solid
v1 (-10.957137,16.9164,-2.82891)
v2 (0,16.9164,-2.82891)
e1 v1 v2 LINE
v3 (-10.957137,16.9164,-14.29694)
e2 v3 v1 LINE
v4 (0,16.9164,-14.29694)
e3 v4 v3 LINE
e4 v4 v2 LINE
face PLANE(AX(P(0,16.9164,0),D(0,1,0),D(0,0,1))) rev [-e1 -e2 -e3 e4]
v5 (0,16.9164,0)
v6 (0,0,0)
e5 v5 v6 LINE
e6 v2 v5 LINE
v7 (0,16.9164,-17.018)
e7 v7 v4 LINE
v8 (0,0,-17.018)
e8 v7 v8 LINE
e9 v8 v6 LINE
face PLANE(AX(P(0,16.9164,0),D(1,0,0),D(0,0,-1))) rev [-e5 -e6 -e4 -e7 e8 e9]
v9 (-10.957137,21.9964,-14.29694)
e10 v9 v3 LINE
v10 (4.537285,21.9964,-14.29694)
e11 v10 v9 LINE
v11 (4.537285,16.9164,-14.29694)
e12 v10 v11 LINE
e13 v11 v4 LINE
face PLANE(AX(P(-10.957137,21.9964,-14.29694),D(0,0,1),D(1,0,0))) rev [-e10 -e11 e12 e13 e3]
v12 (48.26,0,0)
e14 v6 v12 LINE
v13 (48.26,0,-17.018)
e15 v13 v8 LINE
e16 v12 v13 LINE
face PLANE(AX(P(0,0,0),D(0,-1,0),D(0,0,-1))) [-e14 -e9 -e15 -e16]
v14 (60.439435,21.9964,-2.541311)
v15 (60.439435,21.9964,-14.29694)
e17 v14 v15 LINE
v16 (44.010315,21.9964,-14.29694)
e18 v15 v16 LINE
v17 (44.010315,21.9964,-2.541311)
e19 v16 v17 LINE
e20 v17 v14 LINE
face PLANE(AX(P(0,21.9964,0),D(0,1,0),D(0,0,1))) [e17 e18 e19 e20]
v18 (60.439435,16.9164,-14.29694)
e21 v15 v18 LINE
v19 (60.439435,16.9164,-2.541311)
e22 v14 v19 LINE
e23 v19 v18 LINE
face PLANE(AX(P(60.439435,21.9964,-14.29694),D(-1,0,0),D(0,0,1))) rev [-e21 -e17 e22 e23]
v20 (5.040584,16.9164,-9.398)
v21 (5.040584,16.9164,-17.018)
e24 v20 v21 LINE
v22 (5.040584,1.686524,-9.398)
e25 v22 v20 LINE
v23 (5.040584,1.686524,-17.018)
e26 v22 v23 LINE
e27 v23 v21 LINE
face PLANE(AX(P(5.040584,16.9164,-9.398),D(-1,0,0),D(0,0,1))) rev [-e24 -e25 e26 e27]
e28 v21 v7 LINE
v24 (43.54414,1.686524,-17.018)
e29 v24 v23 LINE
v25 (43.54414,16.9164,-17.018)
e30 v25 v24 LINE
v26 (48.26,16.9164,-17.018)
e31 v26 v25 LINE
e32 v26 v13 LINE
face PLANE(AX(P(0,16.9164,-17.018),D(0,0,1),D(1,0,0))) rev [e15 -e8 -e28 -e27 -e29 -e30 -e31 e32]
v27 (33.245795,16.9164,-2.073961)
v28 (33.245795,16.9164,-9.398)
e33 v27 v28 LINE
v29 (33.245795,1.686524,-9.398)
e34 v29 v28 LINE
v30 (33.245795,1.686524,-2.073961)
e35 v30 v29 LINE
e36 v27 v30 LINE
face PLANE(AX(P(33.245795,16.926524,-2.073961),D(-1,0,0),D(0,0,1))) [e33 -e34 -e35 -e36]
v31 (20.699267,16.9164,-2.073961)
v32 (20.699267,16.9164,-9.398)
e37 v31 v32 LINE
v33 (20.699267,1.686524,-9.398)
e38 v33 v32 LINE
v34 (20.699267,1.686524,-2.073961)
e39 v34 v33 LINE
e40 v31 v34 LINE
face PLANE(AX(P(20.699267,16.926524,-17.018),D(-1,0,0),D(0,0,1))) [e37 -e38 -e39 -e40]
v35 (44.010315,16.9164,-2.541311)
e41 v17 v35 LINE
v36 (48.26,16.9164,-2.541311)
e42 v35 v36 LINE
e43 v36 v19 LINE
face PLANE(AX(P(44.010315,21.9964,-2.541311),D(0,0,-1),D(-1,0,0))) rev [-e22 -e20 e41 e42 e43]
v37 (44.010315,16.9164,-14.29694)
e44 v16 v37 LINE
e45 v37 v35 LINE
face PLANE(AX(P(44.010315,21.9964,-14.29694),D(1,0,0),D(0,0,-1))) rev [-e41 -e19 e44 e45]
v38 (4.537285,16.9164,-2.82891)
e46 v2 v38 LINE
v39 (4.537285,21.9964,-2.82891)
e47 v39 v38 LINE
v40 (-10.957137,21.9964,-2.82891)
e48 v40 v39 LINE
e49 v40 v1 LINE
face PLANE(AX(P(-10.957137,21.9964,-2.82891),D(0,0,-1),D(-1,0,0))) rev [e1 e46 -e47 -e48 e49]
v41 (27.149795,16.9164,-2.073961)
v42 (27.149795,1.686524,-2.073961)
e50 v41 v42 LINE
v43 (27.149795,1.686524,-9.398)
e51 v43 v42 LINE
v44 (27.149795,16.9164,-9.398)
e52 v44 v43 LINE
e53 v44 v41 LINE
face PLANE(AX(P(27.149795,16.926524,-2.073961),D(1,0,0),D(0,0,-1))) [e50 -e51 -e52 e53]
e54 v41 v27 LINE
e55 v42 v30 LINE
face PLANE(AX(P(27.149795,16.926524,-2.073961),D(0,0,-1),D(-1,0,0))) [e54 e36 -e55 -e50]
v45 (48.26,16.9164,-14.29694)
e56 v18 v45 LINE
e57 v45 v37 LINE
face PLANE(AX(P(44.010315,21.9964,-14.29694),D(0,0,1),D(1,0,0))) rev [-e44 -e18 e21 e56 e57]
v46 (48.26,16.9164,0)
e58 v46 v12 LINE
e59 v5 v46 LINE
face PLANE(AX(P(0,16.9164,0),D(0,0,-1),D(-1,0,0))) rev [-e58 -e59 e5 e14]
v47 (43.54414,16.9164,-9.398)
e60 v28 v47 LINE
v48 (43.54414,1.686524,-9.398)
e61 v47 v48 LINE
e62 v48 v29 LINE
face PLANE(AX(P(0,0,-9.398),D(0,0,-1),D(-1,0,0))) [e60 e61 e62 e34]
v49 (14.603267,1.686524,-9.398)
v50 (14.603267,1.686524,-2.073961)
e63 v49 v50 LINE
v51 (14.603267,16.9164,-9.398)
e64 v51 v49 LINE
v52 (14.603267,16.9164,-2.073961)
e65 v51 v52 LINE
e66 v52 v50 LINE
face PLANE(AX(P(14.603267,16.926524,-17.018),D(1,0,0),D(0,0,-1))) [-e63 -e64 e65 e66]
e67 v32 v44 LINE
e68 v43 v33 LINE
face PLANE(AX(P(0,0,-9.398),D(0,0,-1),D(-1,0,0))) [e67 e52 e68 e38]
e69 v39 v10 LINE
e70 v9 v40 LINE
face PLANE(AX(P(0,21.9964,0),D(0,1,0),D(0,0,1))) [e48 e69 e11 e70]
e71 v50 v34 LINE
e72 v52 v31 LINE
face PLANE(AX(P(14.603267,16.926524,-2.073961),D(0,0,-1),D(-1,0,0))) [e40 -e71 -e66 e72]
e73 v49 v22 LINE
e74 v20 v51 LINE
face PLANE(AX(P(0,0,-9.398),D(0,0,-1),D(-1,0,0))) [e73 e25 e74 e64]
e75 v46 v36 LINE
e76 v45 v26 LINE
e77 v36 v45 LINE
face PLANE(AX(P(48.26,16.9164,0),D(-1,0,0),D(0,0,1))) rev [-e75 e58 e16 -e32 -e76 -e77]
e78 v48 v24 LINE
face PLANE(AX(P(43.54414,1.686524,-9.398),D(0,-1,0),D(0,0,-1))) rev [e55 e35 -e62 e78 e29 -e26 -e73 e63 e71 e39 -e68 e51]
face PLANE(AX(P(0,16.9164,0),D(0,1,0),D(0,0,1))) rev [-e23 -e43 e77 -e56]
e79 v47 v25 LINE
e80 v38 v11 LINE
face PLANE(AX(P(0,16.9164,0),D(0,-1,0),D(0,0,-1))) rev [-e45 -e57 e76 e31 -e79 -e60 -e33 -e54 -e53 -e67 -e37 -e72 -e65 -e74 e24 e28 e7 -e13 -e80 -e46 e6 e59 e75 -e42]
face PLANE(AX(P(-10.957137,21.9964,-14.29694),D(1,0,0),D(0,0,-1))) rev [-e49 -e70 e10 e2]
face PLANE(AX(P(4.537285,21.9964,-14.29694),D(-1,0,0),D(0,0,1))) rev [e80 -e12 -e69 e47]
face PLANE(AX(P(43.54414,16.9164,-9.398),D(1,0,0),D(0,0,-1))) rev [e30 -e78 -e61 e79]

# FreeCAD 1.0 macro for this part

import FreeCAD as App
import Part
import Sketcher

V = App.Vector
Q = App.Units.Quantity

doc = App.newDocument("Part")
body = doc.addObject("PartDesign::Body", "Body")

# Sketch on XZ plane
sketch1 = doc.addObject("Sketcher::SketchObject", "Sketch")
body.addObject(sketch1)
sketch1.AttachmentSupport = (doc.XZ_Plane, [""])
sketch1.MapMode = "FlatFace"
sketch1.addGeometry(Part.LineSegment(V(0, -17, 0), V(0, 0, 0)), False)
sketch1.addGeometry(Part.LineSegment(V(0, 0, 0), V(48, 0, 0)), False)
sketch1.addGeometry(Part.LineSegment(V(48, 0, 0), V(48, -17, 0)), False)
sketch1.addGeometry(Part.LineSegment(V(48, -17, 0), V(0, -17, 0)), False)
sketch1.addConstraint(Sketcher.Constraint("Coincident", 0, 2, 1, 1))
sketch1.addConstraint(Sketcher.Constraint("Coincident", 1, 2, 2, 1))
sketch1.addConstraint(Sketcher.Constraint("Coincident", 2, 2, 3, 1))
sketch1.addConstraint(Sketcher.Constraint("Coincident", 3, 2, 0, 1))
sketch1.addConstraint(Sketcher.Constraint("Vertical", 0))
sketch1.addConstraint(Sketcher.Constraint("Horizontal", 1))
sketch1.addConstraint(Sketcher.Constraint("Vertical", 2))
sketch1.addConstraint(Sketcher.Constraint("Horizontal", 3))
sketch1.addConstraint(Sketcher.Constraint("Coincident", 0, 2, -1, 1))
sketch1.addConstraint(Sketcher.Constraint("DistanceX", 1, 1, 1, 2, Q("1.9 in")))
sketch1.addConstraint(Sketcher.Constraint("DistanceY", 0, 1, 0, 2, Q("0.67 in")))
pad1 = doc.addObject("PartDesign::Pad", "Pad")
body.addObject(pad1)
pad1.Profile = sketch1
pad1.Length = Q("0.666 in")
pad1.Reversed = True

# Sketch on XY plane
sketch2 = doc.addObject("Sketcher::SketchObject", "Sketch001")
body.addObject(sketch2)
sketch2.AttachmentSupport = (doc.XY_Plane, [""])
sketch2.MapMode = "FlatFace"
sketch2.AttachmentOffset = App.Placement(V(0, 0, -0.67 * 25.4), App.Rotation())
sketch2.addGeometry(Part.LineSegment(V(44, 17, 0), V(44, 2, 0)), False)
sketch2.addGeometry(Part.LineSegment(V(44, 2, 0), V(5, 2, 0)), False)
sketch2.addGeometry(Part.LineSegment(V(5, 2, 0), V(5, 17, 0)), False)
sketch2.addGeometry(Part.LineSegment(V(5, 17, 0), V(44, 17, 0)), False)
sketch2.addConstraint(Sketcher.Constraint("Coincident", 0, 2, 1, 1))
sketch2.addConstraint(Sketcher.Constraint("Coincident", 1, 2, 2, 1))
sketch2.addConstraint(Sketcher.Constraint("Coincident", 2, 2, 3, 1))
sketch2.addConstraint(Sketcher.Constraint("Coincident", 3, 2, 0, 1))
sketch2.addConstraint(Sketcher.Constraint("Vertical", 0))
sketch2.addConstraint(Sketcher.Constraint("Horizontal", 1))
sketch2.addConstraint(Sketcher.Constraint("Vertical", 2))
sketch2.addConstraint(Sketcher.Constraint("Horizontal", 3))
sketch2.addConstraint(Sketcher.Constraint("DistanceY", -1, 1, 2, 2, Q("0.666 in")))
sketch2.addConstraint(Sketcher.Constraint("DistanceX", 1, 2, 1, 1, 38.503556))
sketch2.addConstraint(Sketcher.Constraint("DistanceY", 0, 2, 0, 1, 15.229876))
sketch2.addConstraint(Sketcher.Constraint("DistanceX", -1, 1, 0, 2, 43.54414))
pocket1 = doc.addObject("PartDesign::Pocket", "Pocket")
body.addObject(pocket1)
pocket1.Profile = sketch2
pocket1.Length = Q("0.3 in")
pocket1.Reversed = True

# Sketch on XZ plane
sketch3 = doc.addObject("Sketcher::SketchObject", "Sketch002")
body.addObject(sketch3)
sketch3.AttachmentSupport = (doc.XZ_Plane, [""])
sketch3.MapMode = "FlatFace"
sketch3.AttachmentOffset = App.Placement(V(0, 0, -1.686524), App.Rotation())
sketch3.addGeometry(Part.LineSegment(V(15, -17, 0), V(15, -2, 0)), False)
sketch3.addGeometry(Part.LineSegment(V(15, -2, 0), V(21, -2, 0)), False)
sketch3.addGeometry(Part.LineSegment(V(21, -2, 0), V(21, -17, 0)), False)
sketch3.addGeometry(Part.LineSegment(V(21, -17, 0), V(15, -17, 0)), False)
sketch3.addGeometry(Part.LineSegment(V(27, -17, 0), V(27, -2, 0)), False)
sketch3.addGeometry(Part.LineSegment(V(27, -2, 0), V(33, -2, 0)), False)
sketch3.addGeometry(Part.LineSegment(V(33, -2, 0), V(33, -17, 0)), False)
sketch3.addGeometry(Part.LineSegment(V(33, -17, 0), V(27, -17, 0)), False)
sketch3.addConstraint(Sketcher.Constraint("Coincident", 0, 2, 1, 1))
sketch3.addConstraint(Sketcher.Constraint("Coincident", 1, 2, 2, 1))
sketch3.addConstraint(Sketcher.Constraint("Coincident", 2, 2, 3, 1))
sketch3.addConstraint(Sketcher.Constraint("Coincident", 3, 2, 0, 1))
sketch3.addConstraint(Sketcher.Constraint("Coincident", 4, 2, 5, 1))
sketch3.addConstraint(Sketcher.Constraint("Coincident", 5, 2, 6, 1))
sketch3.addConstraint(Sketcher.Constraint("Coincident", 6, 2, 7, 1))
sketch3.addConstraint(Sketcher.Constraint("Coincident", 7, 2, 4, 1))
sketch3.addConstraint(Sketcher.Constraint("Vertical", 0))
sketch3.addConstraint(Sketcher.Constraint("Horizontal", 1))
sketch3.addConstraint(Sketcher.Constraint("Vertical", 2))
sketch3.addConstraint(Sketcher.Constraint("Horizontal", 3))
sketch3.addConstraint(Sketcher.Constraint("Vertical", 4))
sketch3.addConstraint(Sketcher.Constraint("Horizontal", 5))
sketch3.addConstraint(Sketcher.Constraint("Vertical", 6))
sketch3.addConstraint(Sketcher.Constraint("Horizontal", 7))
sketch3.addConstraint(Sketcher.Constraint("Horizontal", 1, 2, 4, 2))
sketch3.addConstraint(Sketcher.Constraint("Horizontal", 3, 2, 6, 2))
sketch3.addConstraint(Sketcher.Constraint("Equal", 3, 5))
sketch3.addConstraint(Sketcher.Constraint("DistanceX", 1, 1, 1, 2, Q("0.24 in")))
sketch3.addConstraint(Sketcher.Constraint("DistanceY", 2, 2, -1, 1, Q("0.67 in")))
sketch3.addConstraint(Sketcher.Constraint("DistanceY", 0, 1, 0, 2, 14.944039))
sketch3.addConstraint(Sketcher.Constraint("DistanceX", -1, 1, 0, 2, 14.603267))
sketch3.addConstraint(Sketcher.Constraint("DistanceX", -1, 1, 4, 2, 27.149795))
pocket2 = doc.addObject("PartDesign::Pocket", "Pocket001")
body.addObject(pocket2)
pocket2.Profile = sketch3
pocket2.Length = Q("0.6 in")

# Sketch on XZ plane
sketch4 = doc.addObject("Sketcher::SketchObject", "Sketch003")
body.addObject(sketch4)
sketch4.AttachmentSupport = (doc.XZ_Plane, [""])
sketch4.MapMode = "FlatFace"
sketch4.AttachmentOffset = App.Placement(V(0, 0, -0.666 * 25.4), App.Rotation())
sketch4.addGeometry(Part.LineSegment(V(-11, -14, 0), V(-11, -3, 0)), False)
sketch4.addGeometry(Part.LineSegment(V(-11, -3, 0), V(5, -3, 0)), False)
sketch4.addGeometry(Part.LineSegment(V(5, -3, 0), V(5, -14, 0)), False)
sketch4.addGeometry(Part.LineSegment(V(5, -14, 0), V(-11, -14, 0)), False)
sketch4.addGeometry(Part.LineSegment(V(44, -14, 0), V(44, -3, 0)), False)
sketch4.addGeometry(Part.LineSegment(V(44, -3, 0), V(60, -3, 0)), False)
sketch4.addGeometry(Part.LineSegment(V(60, -3, 0), V(60, -14, 0)), False)
sketch4.addGeometry(Part.LineSegment(V(60, -14, 0), V(44, -14, 0)), False)
sketch4.addConstraint(Sketcher.Constraint("Coincident", 0, 2, 1, 1))
sketch4.addConstraint(Sketcher.Constraint("Coincident", 1, 2, 2, 1))
sketch4.addConstraint(Sketcher.Constraint("Coincident", 2, 2, 3, 1))
sketch4.addConstraint(Sketcher.Constraint("Coincident", 3, 2, 0, 1))
sketch4.addConstraint(Sketcher.Constraint("Coincident", 4, 2, 5, 1))
sketch4.addConstraint(Sketcher.Constraint("Coincident", 5, 2, 6, 1))
sketch4.addConstraint(Sketcher.Constraint("Coincident", 6, 2, 7, 1))
sketch4.addConstraint(Sketcher.Constraint("Coincident", 7, 2, 4, 1))
sketch4.addConstraint(Sketcher.Constraint("Vertical", 0))
sketch4.addConstraint(Sketcher.Constraint("Horizontal", 1))
sketch4.addConstraint(Sketcher.Constraint("Vertical", 2))
sketch4.addConstraint(Sketcher.Constraint("Horizontal", 3))
sketch4.addConstraint(Sketcher.Constraint("Vertical", 4))
sketch4.addConstraint(Sketcher.Constraint("Horizontal", 5))
sketch4.addConstraint(Sketcher.Constraint("Vertical", 6))
sketch4.addConstraint(Sketcher.Constraint("Horizontal", 7))
sketch4.addConstraint(Sketcher.Constraint("Horizontal", 3, 2, 6, 2))
sketch4.addConstraint(Sketcher.Constraint("DistanceX", 5, 1, 5, 2, 16.429121))
sketch4.addConstraint(Sketcher.Constraint("DistanceY", 0, 1, 0, 2, 11.46803))
sketch4.addConstraint(Sketcher.Constraint("DistanceY", 4, 1, 4, 2, 11.755629))
sketch4.addConstraint(Sketcher.Constraint("DistanceX", 1, 1, 1, 2, 15.494422))
sketch4.addConstraint(Sketcher.Constraint("DistanceY", 0, 2, -1, 1, 2.82891))
sketch4.addConstraint(Sketcher.Constraint("DistanceX", 1, 2, 4, 2, 39.47303))
sketch4.addConstraint(Sketcher.Constraint("DistanceX", 0, 2, -1, 1, 10.957137))
pad2 = doc.addObject("PartDesign::Pad", "Pad001")
body.addObject(pad2)
pad2.Profile = sketch4
pad2.Length = Q("0.2 in")
pad2.Reversed = True

doc.recompute()
